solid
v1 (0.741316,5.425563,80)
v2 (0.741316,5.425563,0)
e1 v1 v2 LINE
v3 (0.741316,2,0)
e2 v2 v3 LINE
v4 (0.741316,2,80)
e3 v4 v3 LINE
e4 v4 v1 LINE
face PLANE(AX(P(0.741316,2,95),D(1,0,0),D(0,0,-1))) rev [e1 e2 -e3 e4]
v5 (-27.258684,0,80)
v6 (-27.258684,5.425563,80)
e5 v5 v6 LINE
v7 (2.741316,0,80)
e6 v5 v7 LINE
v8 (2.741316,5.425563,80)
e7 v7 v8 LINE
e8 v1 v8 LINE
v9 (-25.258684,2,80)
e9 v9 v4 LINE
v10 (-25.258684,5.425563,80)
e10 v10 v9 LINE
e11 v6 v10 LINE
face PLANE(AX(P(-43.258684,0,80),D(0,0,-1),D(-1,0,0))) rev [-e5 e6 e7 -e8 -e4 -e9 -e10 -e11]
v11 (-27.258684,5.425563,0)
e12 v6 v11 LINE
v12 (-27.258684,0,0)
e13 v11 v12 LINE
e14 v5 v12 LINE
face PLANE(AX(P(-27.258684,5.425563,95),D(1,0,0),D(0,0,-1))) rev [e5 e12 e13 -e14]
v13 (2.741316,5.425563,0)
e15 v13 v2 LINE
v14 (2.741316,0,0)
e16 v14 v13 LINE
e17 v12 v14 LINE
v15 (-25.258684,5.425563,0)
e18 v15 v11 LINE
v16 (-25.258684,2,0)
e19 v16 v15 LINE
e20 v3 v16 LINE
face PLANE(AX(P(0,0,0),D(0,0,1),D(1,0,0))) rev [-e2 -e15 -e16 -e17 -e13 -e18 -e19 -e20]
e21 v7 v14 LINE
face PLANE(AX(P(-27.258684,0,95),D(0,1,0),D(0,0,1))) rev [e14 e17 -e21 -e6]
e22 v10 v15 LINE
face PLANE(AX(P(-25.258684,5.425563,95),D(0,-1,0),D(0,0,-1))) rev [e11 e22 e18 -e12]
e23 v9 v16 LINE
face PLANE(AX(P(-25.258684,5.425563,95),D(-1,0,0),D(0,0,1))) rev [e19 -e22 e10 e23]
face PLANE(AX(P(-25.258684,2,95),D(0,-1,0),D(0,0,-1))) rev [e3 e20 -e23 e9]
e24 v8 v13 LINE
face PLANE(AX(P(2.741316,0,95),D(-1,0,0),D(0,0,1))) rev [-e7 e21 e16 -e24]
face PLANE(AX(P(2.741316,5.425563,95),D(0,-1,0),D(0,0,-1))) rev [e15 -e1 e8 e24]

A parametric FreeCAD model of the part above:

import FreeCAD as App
import Part
import Sketcher
from FreeCAD import Vector
Q = App.Units.Quantity


def add_polygon(sketch, points):
    """Adds a closed chain of lines whose ends are joined by coincident constraints."""
    first, n = sketch.GeometryCount, len(points)
    for a, b in zip(points, points[1:] + points[:1]):
        sketch.addGeometry(Part.LineSegment(App.Vector(*a, 0), App.Vector(*b, 0)), False)
    for i in range(n):
        sketch.addConstraint(Sketcher.Constraint("Coincident", first + i, 2, first + (i + 1) % n, 1))

doc = App.newDocument("Part")
body = doc.addObject("PartDesign::Body", "Body")

# Sketch on XY plane
sketch1 = doc.addObject("Sketcher::SketchObject", "Sketch")
body.addObject(sketch1)
sketch1.AttachmentSupport = (doc.XY_Plane, [""])
sketch1.MapMode = "FlatFace"
add_polygon(sketch1, [(-27.3, 5.4), (-27.3, 0), (2.7, 0), (2.7, 5.4), (0.7, 5.4), (0.7, 2), (-25.3, 2), (-25.3, 5.4)])  # lines 0-7
sketch1.addConstraint([
    Sketcher.Constraint("Vertical", 0),
    Sketcher.Constraint("Horizontal", 1),
    Sketcher.Constraint("Vertical", 2),
    Sketcher.Constraint("Horizontal", 3),
    Sketcher.Constraint("Vertical", 4),
    Sketcher.Constraint("Horizontal", 5),
    Sketcher.Constraint("Vertical", 6),
    Sketcher.Constraint("Horizontal", 7),
    Sketcher.Constraint("PointOnObject", 0, 2, -1),
    Sketcher.Constraint("Horizontal", 3, 2, 6, 2),
    Sketcher.Constraint("Equal", 3, 7),
    Sketcher.Constraint("DistanceX", 1, 1, 1, 2, Q("30 mm")),
    Sketcher.Constraint("DistanceX", 3, 2, 3, 1, Q("2 mm")),
    Sketcher.Constraint("DistanceY", -1, 1, 4, 2, Q("2 mm")),
    Sketcher.Constraint("DistanceY", 0, 2, 0, 1, Q("5.425563 mm")),
    Sketcher.Constraint("DistanceX", 0, 2, -1, 1, Q("27.258684 mm")),
])
pad1 = doc.addObject("PartDesign::Pad", "Pad")
body.addObject(pad1)
pad1.Profile = sketch1
pad1.Length = 95

# Sketch on YZ plane
sketch2 = doc.addObject("Sketcher::SketchObject", "Sketch001")
body.addObject(sketch2)
sketch2.AttachmentSupport = (doc.YZ_Plane, [""])
sketch2.MapMode = "FlatFace"
sketch2.AttachmentOffset = App.Placement(Vector(0, 0, 2.741316), App.Rotation())
add_polygon(sketch2, [(5, 95), (0, 95), (0, 80), (5, 80)])  # lines 0-3
sketch2.addConstraint([
    Sketcher.Constraint("Horizontal", 0),
    Sketcher.Constraint("Vertical", 1),
    Sketcher.Constraint("Horizontal", 2),
    Sketcher.Constraint("Vertical", 3),
    Sketcher.Constraint("PointOnObject", 0, 2, -2),
    Sketcher.Constraint("DistanceY", 1, 2, 1, 1, Q("15 mm")),
    Sketcher.Constraint("DistanceY", -1, 1, 0, 2, Q("95 mm")),
    Sketcher.Constraint("DistanceX", 0, 2, 0, 1, Q("5.425563 mm")),
])
pocket1 = doc.addObject("PartDesign::Pocket", "Pocket")
body.addObject(pocket1)
pocket1.Profile = sketch2
pocket1.Length = 46

doc.recompute()
